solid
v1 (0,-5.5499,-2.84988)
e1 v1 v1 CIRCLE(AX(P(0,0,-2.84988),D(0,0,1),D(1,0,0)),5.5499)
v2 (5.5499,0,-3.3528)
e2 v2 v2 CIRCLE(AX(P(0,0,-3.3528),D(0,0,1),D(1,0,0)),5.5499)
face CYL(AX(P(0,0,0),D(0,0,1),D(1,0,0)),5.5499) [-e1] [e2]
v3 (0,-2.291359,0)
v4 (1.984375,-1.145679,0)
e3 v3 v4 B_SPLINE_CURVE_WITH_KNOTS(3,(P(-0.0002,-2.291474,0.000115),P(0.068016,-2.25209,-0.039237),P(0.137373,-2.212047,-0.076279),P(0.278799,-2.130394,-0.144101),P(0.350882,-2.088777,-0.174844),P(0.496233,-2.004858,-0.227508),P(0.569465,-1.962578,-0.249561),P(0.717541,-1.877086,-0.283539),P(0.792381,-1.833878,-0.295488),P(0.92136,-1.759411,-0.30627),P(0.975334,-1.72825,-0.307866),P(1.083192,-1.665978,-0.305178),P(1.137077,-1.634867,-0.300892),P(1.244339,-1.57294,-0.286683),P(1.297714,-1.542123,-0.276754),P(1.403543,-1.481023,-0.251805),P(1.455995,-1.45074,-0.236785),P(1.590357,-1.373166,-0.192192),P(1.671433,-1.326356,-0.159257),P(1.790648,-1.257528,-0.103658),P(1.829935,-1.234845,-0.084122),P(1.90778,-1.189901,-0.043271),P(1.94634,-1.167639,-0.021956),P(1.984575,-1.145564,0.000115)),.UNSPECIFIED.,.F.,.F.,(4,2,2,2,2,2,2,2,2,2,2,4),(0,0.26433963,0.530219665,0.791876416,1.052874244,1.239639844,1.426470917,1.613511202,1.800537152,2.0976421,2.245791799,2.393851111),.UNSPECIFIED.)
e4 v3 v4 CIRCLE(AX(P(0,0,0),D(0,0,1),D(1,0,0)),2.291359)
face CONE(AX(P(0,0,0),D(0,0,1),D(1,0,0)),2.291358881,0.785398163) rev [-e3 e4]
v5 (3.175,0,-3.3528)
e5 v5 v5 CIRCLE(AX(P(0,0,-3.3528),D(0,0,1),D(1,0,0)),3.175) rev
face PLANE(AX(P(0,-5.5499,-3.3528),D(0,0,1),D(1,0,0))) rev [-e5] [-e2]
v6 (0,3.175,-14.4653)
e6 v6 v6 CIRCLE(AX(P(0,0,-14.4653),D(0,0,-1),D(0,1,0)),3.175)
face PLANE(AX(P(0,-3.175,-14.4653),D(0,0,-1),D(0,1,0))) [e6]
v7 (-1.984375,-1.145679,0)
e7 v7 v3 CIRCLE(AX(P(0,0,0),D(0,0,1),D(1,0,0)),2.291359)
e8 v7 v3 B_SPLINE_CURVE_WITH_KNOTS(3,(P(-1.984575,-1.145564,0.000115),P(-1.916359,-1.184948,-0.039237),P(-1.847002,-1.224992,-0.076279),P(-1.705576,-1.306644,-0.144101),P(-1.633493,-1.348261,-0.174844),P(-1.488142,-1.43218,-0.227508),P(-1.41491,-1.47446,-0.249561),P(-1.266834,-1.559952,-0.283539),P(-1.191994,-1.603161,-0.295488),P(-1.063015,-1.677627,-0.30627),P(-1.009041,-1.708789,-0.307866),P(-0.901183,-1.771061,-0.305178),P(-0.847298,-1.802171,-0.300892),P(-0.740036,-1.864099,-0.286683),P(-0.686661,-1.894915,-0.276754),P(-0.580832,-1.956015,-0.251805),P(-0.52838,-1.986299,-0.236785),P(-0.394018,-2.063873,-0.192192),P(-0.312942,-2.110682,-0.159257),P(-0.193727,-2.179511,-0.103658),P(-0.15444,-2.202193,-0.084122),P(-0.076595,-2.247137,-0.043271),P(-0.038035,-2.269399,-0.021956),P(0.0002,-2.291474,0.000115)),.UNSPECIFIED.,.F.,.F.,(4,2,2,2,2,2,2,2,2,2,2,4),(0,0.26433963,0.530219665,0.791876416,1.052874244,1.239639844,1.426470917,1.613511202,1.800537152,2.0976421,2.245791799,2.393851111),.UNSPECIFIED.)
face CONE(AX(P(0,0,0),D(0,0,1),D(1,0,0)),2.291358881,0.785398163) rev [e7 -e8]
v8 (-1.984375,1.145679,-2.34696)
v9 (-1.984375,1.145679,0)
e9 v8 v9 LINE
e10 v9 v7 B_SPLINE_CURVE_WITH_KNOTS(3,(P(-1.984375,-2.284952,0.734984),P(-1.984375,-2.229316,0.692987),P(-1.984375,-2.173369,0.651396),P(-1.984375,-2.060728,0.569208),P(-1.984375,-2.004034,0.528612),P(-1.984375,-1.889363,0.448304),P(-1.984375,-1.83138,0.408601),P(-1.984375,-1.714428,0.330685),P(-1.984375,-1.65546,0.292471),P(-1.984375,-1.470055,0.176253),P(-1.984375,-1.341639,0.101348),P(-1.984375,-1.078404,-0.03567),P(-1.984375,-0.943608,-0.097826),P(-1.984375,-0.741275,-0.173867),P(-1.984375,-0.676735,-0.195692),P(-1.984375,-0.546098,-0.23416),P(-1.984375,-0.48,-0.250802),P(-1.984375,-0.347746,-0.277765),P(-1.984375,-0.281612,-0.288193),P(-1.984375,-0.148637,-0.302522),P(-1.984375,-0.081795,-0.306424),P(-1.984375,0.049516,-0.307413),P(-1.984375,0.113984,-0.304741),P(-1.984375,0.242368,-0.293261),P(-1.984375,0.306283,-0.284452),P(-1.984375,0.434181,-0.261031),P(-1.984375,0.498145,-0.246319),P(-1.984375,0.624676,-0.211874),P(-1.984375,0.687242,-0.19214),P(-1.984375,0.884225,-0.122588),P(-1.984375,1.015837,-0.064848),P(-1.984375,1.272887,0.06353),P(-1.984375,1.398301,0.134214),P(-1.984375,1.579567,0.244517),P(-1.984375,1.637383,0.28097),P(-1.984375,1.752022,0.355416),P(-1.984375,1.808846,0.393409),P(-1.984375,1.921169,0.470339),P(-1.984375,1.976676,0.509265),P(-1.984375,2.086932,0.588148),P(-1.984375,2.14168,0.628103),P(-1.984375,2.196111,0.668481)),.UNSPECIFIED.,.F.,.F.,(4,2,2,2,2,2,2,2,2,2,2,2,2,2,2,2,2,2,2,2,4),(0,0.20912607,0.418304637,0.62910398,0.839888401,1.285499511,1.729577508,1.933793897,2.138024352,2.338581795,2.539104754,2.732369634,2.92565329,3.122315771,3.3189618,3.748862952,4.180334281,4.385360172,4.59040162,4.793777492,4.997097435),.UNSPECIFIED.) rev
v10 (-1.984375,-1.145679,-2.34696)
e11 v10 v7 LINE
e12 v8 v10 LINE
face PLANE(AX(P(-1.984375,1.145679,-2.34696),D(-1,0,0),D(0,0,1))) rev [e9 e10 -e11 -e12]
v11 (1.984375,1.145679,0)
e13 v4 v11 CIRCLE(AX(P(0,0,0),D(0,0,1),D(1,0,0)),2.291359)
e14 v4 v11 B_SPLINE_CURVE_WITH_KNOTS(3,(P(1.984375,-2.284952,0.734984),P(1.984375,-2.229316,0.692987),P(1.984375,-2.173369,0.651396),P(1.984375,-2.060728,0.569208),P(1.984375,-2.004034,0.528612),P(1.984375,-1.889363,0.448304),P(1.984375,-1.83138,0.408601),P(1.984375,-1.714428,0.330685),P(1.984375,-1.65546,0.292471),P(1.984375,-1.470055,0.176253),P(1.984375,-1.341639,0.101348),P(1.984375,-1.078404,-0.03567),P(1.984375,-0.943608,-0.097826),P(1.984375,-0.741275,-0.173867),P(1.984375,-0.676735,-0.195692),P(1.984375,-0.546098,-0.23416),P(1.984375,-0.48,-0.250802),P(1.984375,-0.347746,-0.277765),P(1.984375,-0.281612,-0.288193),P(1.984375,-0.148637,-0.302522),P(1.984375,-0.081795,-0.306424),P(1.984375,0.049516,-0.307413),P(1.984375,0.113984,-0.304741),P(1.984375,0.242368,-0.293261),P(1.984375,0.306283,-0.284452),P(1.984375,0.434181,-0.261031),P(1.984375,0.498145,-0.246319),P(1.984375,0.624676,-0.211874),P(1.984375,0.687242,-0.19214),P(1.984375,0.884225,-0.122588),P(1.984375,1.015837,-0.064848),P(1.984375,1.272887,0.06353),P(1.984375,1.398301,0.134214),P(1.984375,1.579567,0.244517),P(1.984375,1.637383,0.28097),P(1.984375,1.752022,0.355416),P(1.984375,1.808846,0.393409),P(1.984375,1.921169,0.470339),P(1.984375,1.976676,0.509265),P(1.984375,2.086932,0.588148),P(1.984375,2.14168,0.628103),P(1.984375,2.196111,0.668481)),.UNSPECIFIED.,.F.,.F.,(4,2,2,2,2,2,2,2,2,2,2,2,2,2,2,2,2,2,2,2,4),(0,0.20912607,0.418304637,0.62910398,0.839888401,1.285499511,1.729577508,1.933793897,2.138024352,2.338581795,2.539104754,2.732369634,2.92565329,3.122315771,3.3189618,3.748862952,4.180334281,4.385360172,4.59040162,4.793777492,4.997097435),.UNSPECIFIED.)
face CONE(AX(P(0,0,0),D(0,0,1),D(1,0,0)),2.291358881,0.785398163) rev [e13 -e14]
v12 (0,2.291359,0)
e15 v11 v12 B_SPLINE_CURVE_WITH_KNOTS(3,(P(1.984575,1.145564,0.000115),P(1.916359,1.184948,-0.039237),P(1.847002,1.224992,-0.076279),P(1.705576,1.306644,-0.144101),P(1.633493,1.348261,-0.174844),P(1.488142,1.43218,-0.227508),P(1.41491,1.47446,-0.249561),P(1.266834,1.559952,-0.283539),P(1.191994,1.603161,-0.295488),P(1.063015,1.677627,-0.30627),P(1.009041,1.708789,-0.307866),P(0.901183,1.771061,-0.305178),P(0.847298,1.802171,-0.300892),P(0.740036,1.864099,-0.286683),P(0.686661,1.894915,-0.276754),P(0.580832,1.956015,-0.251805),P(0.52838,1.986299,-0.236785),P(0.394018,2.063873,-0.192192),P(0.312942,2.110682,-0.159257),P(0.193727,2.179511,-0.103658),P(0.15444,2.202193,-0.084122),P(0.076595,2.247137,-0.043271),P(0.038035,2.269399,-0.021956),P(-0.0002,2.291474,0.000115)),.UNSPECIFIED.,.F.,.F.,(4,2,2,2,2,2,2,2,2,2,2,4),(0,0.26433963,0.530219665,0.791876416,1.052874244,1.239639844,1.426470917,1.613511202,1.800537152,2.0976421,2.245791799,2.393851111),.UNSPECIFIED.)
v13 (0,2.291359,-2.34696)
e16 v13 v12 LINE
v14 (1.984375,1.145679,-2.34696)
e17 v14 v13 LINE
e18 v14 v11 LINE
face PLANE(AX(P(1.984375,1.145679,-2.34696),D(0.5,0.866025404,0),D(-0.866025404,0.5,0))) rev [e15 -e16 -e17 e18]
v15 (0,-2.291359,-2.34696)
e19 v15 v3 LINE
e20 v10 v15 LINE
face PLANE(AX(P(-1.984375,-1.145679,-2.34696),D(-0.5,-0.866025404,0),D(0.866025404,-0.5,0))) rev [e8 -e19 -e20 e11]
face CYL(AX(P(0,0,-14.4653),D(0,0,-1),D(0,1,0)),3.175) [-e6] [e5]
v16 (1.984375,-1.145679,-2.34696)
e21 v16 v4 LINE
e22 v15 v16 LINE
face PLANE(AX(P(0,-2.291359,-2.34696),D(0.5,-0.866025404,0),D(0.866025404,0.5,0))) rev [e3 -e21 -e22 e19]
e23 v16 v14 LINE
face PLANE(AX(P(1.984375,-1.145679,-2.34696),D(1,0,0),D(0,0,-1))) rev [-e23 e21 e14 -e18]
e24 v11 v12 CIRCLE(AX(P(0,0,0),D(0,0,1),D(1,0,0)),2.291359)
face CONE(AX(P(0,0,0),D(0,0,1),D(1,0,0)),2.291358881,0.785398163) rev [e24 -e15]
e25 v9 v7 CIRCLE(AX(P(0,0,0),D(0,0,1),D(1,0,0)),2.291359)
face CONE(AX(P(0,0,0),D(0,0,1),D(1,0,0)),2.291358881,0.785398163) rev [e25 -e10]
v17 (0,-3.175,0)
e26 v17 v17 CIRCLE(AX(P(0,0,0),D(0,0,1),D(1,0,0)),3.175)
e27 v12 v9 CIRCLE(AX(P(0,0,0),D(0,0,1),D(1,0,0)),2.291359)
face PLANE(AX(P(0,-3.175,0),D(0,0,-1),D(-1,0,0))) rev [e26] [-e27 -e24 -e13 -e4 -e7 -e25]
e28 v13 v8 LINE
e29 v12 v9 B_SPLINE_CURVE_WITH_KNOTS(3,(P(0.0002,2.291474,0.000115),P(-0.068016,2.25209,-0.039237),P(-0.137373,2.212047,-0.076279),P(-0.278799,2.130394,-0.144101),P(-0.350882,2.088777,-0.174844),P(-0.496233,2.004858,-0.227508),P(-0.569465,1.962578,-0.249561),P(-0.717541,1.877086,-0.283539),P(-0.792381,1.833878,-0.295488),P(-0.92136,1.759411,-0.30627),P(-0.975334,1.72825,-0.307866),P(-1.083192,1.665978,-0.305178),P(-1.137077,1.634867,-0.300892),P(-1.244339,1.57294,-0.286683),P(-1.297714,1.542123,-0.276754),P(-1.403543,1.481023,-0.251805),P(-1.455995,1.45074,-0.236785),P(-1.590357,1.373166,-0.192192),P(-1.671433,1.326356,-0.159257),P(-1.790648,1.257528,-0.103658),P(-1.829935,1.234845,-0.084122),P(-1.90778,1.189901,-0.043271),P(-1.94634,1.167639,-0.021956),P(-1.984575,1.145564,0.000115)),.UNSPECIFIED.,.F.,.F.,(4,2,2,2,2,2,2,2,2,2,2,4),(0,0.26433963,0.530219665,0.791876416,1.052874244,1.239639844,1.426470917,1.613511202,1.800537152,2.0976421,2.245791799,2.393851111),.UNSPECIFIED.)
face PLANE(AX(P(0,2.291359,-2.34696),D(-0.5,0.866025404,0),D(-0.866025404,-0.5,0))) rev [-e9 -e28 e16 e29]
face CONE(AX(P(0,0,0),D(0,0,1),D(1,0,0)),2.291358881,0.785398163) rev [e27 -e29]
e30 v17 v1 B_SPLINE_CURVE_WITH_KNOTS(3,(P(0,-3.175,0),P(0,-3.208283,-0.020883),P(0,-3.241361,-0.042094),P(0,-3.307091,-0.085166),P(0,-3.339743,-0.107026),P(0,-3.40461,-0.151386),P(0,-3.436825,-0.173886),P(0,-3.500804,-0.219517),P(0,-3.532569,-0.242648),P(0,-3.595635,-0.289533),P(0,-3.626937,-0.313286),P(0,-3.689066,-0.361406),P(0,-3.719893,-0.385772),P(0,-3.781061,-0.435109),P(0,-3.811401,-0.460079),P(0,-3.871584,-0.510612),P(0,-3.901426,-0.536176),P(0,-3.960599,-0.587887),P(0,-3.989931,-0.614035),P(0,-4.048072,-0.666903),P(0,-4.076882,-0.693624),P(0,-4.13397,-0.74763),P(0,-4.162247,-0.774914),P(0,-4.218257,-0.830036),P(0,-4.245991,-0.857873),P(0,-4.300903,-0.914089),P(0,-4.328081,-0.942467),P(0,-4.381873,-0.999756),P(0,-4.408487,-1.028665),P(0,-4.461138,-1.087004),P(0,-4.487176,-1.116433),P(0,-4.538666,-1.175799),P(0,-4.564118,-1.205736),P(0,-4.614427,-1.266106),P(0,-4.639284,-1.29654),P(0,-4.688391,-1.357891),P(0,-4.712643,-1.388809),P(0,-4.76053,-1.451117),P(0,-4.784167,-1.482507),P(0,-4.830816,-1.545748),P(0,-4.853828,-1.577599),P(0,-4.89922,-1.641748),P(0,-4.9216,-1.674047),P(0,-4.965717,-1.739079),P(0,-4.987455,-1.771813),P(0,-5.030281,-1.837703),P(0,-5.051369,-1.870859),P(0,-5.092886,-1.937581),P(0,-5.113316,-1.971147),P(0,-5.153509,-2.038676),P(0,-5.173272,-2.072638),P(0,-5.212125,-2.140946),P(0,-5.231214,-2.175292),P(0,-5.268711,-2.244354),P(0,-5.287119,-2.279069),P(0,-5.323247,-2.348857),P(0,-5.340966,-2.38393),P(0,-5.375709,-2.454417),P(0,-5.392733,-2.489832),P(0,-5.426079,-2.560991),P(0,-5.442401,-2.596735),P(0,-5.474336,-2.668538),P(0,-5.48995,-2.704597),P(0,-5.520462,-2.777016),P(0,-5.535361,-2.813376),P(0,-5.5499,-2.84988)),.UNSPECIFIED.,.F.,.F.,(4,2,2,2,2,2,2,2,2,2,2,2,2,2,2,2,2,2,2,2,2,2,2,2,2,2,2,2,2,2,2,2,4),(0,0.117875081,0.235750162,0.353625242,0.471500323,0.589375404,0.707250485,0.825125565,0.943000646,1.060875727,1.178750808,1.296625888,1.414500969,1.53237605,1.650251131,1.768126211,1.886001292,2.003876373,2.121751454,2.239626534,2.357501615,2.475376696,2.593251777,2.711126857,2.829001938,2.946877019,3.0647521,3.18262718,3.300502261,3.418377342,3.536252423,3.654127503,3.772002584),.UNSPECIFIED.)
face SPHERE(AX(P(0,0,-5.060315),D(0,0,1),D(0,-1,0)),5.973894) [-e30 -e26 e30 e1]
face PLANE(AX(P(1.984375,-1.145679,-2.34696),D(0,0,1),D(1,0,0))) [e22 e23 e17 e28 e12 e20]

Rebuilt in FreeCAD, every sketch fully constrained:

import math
import FreeCAD as App
import Part
import Sketcher
Q = App.Units.Quantity


def add_polygon(sketch, points):
    """Adds a closed chain of lines whose ends are joined by coincident constraints."""
    first, n = sketch.GeometryCount, len(points)
    for a, b in zip(points, points[1:] + points[:1]):
        sketch.addGeometry(Part.LineSegment(App.Vector(*a, 0), App.Vector(*b, 0)), False)
    for i in range(n):
        sketch.addConstraint(Sketcher.Constraint("Coincident", first + i, 2, first + (i + 1) % n, 1))

doc = App.newDocument("Part")
body = doc.addObject("PartDesign::Body", "Body")

sketch1 = body.newObject("Sketcher::SketchObject", "Sketch")
sketch1.AttachmentSupport = (doc.getObject("YZ_Plane"), [""])
sketch1.MapMode = "FlatFace"
add_polygon(sketch1, [(3.2, -3.4), (0, -3.4), (0, -14.5), (3.2, -14.5)])
sketch1.addConstraint([
    Sketcher.Constraint("Horizontal", 0),
    Sketcher.Constraint("Vertical", 1),
    Sketcher.Constraint("Horizontal", 2),
    Sketcher.Constraint("Vertical", 3),
    Sketcher.Constraint("PointOnObject", 0, 2, -2),
    Sketcher.Constraint("DistanceX", 0, 2, 0, 1, Q("0.125 in")),
    Sketcher.Constraint("DistanceY", 1, 2, 1, 1, Q("0.4375 in")),
    Sketcher.Constraint("DistanceY", 0, 2, -1, 1, Q("0.132 in")),
])
revolution = body.newObject("PartDesign::Revolution", "Revolution")
revolution.Profile = sketch1
revolution.ReferenceAxis = (sketch1, ["V_Axis"])
revolution.Angle = 360

sketch2 = body.newObject("Sketcher::SketchObject", "Sketch001")
sketch2.AttachmentSupport = (doc.getObject("YZ_Plane"), [""])
sketch2.MapMode = "FlatFace"
sketch2.addGeometry([
    Part.LineSegment(App.Vector(5.5, -3.4, 0), App.Vector(5.5, -2.8, 0)),
    Part.ArcOfCircle(Part.Circle(App.Vector(0, -5.1, 0), App.Vector(0, 0, 1), 6), math.radians(22), math.radians(58)),
    Part.LineSegment(App.Vector(3.2, 0, 0), App.Vector(0, 0, 0)),
    Part.LineSegment(App.Vector(0, 0, 0), App.Vector(0, -3.4, 0)),
    Part.LineSegment(App.Vector(0, -3.4, 0), App.Vector(5.5, -3.4, 0)),
], False)
sketch2.addConstraint([
    Sketcher.Constraint("Coincident", 0, 2, 1, 1),
    Sketcher.Constraint("Coincident", 1, 2, 2, 1),
    Sketcher.Constraint("Coincident", 2, 2, 3, 1),
    Sketcher.Constraint("Coincident", 3, 2, 4, 1),
    Sketcher.Constraint("Coincident", 4, 2, 0, 1),
    Sketcher.Constraint("Vertical", 0),
    Sketcher.Constraint("Horizontal", 2),
    Sketcher.Constraint("Vertical", 3),
    Sketcher.Constraint("Horizontal", 4),
    Sketcher.Constraint("Coincident", 2, 2, -1, 1),
    Sketcher.Constraint("PointOnObject", 1, 3, -2),
    Sketcher.Constraint("DistanceX", 2, 2, 2, 1, Q("0.125 in")),
    Sketcher.Constraint("DistanceY", 3, 2, 3, 1, Q("0.132 in")),
    Sketcher.Constraint("DistanceX", 4, 1, 4, 2, Q("0.2185 in")),
    Sketcher.Constraint("DistanceY", 0, 1, 0, 2, Q("0.0198 in")),
])
revolution2 = body.newObject("PartDesign::Revolution", "Revolution001")
revolution2.Profile = sketch2
revolution2.ReferenceAxis = (sketch2, ["V_Axis"])
revolution2.Angle = 360

sketch3 = body.newObject("Sketcher::SketchObject", "Sketch002")
sketch3.AttachmentSupport = (doc.getObject("XY_Plane"), [""])
sketch3.MapMode = "FlatFace"
add_polygon(sketch3, [(2, -1.1), (2, 1.1), (0, 2.3), (-2, 1.1), (-2, -1.1), (0, -2.3)])
sketch3.addConstraint([
    Sketcher.Constraint("Vertical", 0),
    Sketcher.Constraint("Vertical", 3),
    Sketcher.Constraint("Symmetric", 0, 2, 3, 2, -1, 1),
    Sketcher.Constraint("Symmetric", 1, 2, 4, 2, -1, 1),
    Sketcher.Constraint("PointOnObject", 1, 2, -2),
    Sketcher.Constraint("Parallel", 2, 5),
    Sketcher.Constraint("Horizontal", 0, 2, 2, 2),
    Sketcher.Constraint("Angle", 1, Q("150 deg")),
    Sketcher.Constraint("DistanceX", -1, 1, 0, 2, Q("0.078125 in")),
    Sketcher.Constraint("DistanceY", 0, 1, 0, 2, Q("2.291359 mm")),
])
pocket1 = body.newObject("PartDesign::Pocket", "Pocket")
pocket1.Profile = sketch3
pocket1.Length = Q("0.0924 in")

sketch4 = body.newObject("Sketcher::SketchObject", "Sketch003")
sketch4.AttachmentSupport = (doc.getObject("YZ_Plane"), [""])
sketch4.MapMode = "FlatFace"
add_polygon(sketch4, [(0, 0), (-2.3, 0), (0, -2.3)])
sketch4.addConstraint([
    Sketcher.Constraint("Horizontal", 0),
    Sketcher.Constraint("Vertical", 2),
    Sketcher.Constraint("Coincident", 2, 2, -1, 1),
    Sketcher.Constraint("Equal", 0, 2),
    Sketcher.Constraint("DistanceX", 0, 2, 0, 1, Q("2.291359 mm")),
])
groove = body.newObject("PartDesign::Groove", "Groove")
groove.Profile = sketch4
groove.ReferenceAxis = (sketch4, ["V_Axis"])
groove.Angle = 360

doc.recompute()
